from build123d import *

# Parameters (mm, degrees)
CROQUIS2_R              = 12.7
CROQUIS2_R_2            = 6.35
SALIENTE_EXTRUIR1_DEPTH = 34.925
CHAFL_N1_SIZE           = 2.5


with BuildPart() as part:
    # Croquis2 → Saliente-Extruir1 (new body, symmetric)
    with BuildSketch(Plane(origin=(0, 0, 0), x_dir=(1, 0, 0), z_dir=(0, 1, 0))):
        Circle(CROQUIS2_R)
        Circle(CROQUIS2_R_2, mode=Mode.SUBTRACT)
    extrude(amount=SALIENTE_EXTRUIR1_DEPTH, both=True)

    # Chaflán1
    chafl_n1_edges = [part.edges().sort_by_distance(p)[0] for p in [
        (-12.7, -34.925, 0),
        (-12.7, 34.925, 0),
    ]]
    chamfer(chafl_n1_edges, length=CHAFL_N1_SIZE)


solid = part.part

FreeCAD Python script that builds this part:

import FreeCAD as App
import Part
import Sketcher
from FreeCAD import Vector
Q = App.Units.Quantity


def edges_at(feature, points):
    """Names of the edges that pass closest to the given points."""
    edges = feature.Shape.Edges
    near = lambda p: min(range(len(edges)), key=lambda i: edges[i].distToShape(Part.Vertex(*p))[0])
    return sorted({f"Edge{near(p) + 1}" for p in points})

doc = App.newDocument("Part")
body = doc.addObject("PartDesign::Body", "Body")

# Sketch on XZ plane
sketch1 = doc.addObject("Sketcher::SketchObject", "Sketch")
body.addObject(sketch1)
sketch1.AttachmentSupport = (doc.XZ_Plane, [""])
sketch1.MapMode = "FlatFace"
sketch1.addGeometry(Part.Circle(Vector(0, 0, 0), Vector(0, 0, 1), 13), False)
sketch1.addGeometry(Part.Circle(Vector(0, 0, 0), Vector(0, 0, 1), 6), False)
sketch1.addConstraint(Sketcher.Constraint("Coincident", 0, 3, -1, 1))
sketch1.addConstraint(Sketcher.Constraint("Coincident", 1, 3, -1, 1))
sketch1.addConstraint(Sketcher.Constraint("Diameter", 0, Q("1 in")))
sketch1.addConstraint(Sketcher.Constraint("Diameter", 1, Q("0.5 in")))
pad1 = doc.addObject("PartDesign::Pad", "Pad")
body.addObject(pad1)
pad1.Profile = sketch1
pad1.Length = Q("2.75 in")
pad1.Midplane = True
doc.recompute()

chamfer = doc.addObject("PartDesign::Chamfer", "Chamfer")
body.addObject(chamfer)
chamfer.Base = (pad1, edges_at(pad1, [(-12.7, -34.925, 0), (-12.7, 34.925, 0)]))
chamfer.Size = 2.5

doc.recompute()
